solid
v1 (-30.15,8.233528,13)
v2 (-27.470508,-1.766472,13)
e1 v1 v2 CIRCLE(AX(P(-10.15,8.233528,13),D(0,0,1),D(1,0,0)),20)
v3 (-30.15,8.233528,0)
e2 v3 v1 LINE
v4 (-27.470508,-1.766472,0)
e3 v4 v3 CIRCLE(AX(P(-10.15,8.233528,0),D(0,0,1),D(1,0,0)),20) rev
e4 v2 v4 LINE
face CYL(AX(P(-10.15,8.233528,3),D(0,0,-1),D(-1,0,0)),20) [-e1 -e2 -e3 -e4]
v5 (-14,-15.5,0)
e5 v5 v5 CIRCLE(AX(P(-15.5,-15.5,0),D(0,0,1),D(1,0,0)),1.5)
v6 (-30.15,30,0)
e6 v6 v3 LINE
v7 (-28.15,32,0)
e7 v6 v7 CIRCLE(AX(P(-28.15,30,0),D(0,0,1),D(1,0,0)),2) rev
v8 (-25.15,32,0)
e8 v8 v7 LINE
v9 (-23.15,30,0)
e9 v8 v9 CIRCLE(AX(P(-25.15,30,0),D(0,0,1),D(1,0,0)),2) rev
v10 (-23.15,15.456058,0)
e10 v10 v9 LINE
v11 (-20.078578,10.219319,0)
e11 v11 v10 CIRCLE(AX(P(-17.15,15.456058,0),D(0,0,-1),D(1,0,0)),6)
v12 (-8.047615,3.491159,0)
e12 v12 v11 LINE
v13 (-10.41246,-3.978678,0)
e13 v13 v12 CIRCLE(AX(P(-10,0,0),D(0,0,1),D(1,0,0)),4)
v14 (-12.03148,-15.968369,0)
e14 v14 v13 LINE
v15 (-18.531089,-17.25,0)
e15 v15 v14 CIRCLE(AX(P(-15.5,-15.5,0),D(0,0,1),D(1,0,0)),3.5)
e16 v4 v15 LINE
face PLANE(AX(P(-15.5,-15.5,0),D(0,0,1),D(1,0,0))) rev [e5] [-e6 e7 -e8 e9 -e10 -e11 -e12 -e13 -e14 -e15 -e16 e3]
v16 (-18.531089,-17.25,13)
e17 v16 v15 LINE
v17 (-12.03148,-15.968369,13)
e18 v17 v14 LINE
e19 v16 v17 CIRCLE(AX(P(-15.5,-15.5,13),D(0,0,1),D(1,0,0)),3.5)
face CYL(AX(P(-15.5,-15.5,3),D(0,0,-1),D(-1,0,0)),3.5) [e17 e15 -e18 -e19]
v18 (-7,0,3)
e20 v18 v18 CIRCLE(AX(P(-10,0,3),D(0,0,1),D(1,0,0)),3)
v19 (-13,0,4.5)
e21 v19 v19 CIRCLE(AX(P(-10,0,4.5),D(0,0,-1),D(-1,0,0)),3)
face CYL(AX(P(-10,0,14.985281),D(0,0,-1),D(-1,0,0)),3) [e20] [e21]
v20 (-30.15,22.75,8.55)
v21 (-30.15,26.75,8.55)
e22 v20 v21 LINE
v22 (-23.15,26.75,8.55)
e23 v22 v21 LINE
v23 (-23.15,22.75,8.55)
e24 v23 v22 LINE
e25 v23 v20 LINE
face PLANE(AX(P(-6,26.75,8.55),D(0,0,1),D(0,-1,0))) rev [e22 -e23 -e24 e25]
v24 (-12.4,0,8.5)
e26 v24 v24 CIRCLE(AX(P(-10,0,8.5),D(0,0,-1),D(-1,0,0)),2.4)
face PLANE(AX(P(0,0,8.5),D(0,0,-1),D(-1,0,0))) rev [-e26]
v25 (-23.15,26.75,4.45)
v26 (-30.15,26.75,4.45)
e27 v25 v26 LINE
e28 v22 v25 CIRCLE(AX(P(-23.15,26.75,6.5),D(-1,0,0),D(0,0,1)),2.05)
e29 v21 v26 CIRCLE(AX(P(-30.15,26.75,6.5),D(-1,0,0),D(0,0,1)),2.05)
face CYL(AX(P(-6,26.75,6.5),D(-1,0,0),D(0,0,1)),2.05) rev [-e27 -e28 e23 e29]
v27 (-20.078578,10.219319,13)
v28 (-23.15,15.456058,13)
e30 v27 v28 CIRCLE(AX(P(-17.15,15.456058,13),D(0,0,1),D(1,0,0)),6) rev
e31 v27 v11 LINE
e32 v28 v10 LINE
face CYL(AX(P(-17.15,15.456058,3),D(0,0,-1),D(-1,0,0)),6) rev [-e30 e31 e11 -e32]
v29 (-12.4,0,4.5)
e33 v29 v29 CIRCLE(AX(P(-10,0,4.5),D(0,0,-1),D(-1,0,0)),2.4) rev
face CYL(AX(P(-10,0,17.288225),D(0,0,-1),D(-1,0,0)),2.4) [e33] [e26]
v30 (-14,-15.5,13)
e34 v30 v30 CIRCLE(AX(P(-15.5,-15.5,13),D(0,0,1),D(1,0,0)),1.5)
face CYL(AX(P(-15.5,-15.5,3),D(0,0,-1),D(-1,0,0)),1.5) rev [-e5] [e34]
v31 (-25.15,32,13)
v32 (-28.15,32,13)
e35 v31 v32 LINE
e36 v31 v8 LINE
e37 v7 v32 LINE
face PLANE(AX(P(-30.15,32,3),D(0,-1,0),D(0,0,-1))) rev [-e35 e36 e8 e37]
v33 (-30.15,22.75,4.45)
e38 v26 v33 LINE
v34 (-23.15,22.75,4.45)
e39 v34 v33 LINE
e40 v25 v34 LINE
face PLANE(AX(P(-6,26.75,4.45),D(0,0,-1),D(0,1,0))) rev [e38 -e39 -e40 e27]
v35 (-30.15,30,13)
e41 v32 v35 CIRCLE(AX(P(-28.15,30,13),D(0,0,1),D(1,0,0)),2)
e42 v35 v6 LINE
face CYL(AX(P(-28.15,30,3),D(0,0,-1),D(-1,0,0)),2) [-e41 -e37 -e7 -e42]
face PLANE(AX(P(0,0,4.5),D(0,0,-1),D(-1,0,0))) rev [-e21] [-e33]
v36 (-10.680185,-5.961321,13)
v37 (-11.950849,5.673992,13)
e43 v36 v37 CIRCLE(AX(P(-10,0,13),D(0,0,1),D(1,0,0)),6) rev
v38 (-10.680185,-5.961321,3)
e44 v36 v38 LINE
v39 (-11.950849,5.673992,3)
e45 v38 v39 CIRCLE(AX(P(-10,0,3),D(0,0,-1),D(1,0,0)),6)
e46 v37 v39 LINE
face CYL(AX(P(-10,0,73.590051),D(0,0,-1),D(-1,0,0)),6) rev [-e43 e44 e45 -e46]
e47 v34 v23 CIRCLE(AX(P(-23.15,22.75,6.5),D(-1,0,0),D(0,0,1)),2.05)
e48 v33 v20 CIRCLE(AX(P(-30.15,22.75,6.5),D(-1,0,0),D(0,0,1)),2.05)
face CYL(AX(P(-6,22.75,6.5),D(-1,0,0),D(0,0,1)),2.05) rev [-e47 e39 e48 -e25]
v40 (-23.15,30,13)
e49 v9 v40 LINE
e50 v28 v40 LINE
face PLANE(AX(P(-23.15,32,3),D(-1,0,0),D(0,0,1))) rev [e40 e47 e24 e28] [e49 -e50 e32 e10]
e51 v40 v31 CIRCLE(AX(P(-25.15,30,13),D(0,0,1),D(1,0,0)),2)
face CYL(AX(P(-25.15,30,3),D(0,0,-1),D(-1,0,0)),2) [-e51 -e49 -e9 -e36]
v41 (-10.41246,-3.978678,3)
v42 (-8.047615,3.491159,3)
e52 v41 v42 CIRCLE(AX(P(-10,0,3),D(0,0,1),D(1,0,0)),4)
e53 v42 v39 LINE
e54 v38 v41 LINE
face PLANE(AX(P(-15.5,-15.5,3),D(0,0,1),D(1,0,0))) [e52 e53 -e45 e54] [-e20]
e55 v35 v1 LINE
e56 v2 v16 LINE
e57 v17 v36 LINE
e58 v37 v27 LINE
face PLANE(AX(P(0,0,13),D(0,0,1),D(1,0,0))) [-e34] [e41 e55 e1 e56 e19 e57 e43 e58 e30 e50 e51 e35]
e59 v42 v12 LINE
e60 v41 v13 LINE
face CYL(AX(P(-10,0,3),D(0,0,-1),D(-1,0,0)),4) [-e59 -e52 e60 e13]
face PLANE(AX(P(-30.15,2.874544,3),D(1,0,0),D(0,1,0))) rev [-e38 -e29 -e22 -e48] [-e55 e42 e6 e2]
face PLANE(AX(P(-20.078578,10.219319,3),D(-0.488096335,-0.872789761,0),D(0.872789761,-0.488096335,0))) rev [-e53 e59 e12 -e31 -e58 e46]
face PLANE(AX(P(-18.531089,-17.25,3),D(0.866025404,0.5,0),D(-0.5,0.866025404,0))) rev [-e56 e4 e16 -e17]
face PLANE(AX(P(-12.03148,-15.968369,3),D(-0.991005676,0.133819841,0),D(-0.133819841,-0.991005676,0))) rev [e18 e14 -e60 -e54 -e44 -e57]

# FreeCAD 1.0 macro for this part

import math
import FreeCAD as App
import Part
import Sketcher

V = App.Vector
Q = App.Units.Quantity


def edges_at(feature, points):
    """Names of the edges that pass closest to the given points."""
    edges = feature.Shape.Edges
    near = lambda p: min(range(len(edges)), key=lambda i: edges[i].distToShape(Part.Vertex(*p))[0])
    return sorted({f"Edge{near(p) + 1}" for p in points})

doc = App.newDocument("Part")
params = doc.addObject("Spreadsheet::Sheet", "Params")
for row, (alias, value) in enumerate([
    ("sketch1_diameter", "3 mm"),
    ("sketch1_radius", "4 mm"),
    ("sketch1_radius2", "6 mm"),
    ("sketch1_radius3", "3.5 mm"),
    ("sketch1_width", "7 mm"),
    ("pad1_length", "3 mm"),
    ("sketch2_diameter", "6 mm"),
    ("pad2_length", "1.5 mm"),
    ("sketch3_diameter", "4.8 mm"),
    ("pad3_length", "4 mm"),
    ("sketch4_diameter", "3 mm"),
    ("sketch4_radius", "6 mm"),
    ("sketch4_radius2", "3.5 mm"),
    ("sketch4_width", "7 mm"),
    ("pad4_length", "10 mm"),
    ("fillet_radius", "20 mm"),
    ("fillet2_radius", "2 mm"),
    ("sketch5_width", "4 mm"),
    ("sketch5_radius", "2.05 mm"),
], start=1):
    params.set(f"A{row}", alias)
    params.set(f"B{row}", "=" + value)
    params.setAlias(f"B{row}", alias)

body = doc.addObject("PartDesign::Body", "Body")

# Sketch on XY plane
sketch1 = doc.addObject("Sketcher::SketchObject", "Sketch")
body.addObject(sketch1)
sketch1.AttachmentSupport = (doc.XY_Plane, [""])
sketch1.MapMode = "FlatFace"
sketch1.addGeometry(Part.LineSegment(V(-12, -16, 0), V(-10.4, -4, 0)), False)
sketch1.addGeometry(Part.ArcOfCircle(Part.Circle(V(-10, 0, 0), V(0, 0, 1), 4), math.radians(-96), math.radians(61)), False)
sketch1.addGeometry(Part.LineSegment(V(-8, 3.5, 0), V(-20.1, 10.2, 0)), False)
sketch1.addGeometry(Part.ArcOfCircle(Part.Circle(V(-17.2, 15.5, 0), V(0, 0, 1), 6), math.radians(180), math.radians(241)), False)
sketch1.addGeometry(Part.LineSegment(V(-23.1, 15.5, 0), V(-23.1, 32, 0)), False)
sketch1.addGeometry(Part.LineSegment(V(-23.1, 32, 0), V(-30.1, 32, 0)), False)
sketch1.addGeometry(Part.LineSegment(V(-30.1, 32, 0), V(-30.1, 2.9, 0)), False)
sketch1.addGeometry(Part.LineSegment(V(-30.1, 2.9, 0), V(-18.5, -17.2, 0)), False)
sketch1.addGeometry(Part.ArcOfCircle(Part.Circle(V(-15.5, -15.5, 0), V(0, 0, 1), 3.5), math.radians(-150), math.radians(-8)), False)
sketch1.addGeometry(Part.Circle(V(-15.5, -15.5, 0), V(0, 0, 1), 1.5), False)
sketch1.addConstraint(Sketcher.Constraint("Coincident", 0, 2, 1, 1))
sketch1.addConstraint(Sketcher.Constraint("Tangent", 1, 2, 2, 1))
sketch1.addConstraint(Sketcher.Constraint("Tangent", 2, 2, 3, 2))
sketch1.addConstraint(Sketcher.Constraint("Tangent", 3, 1, 4, 1))
sketch1.addConstraint(Sketcher.Constraint("Coincident", 4, 2, 5, 1))
sketch1.addConstraint(Sketcher.Constraint("Coincident", 5, 2, 6, 1))
sketch1.addConstraint(Sketcher.Constraint("Coincident", 6, 2, 7, 1))
sketch1.addConstraint(Sketcher.Constraint("Tangent", 7, 2, 8, 1))
sketch1.addConstraint(Sketcher.Constraint("Tangent", 8, 2, 0, 1))
sketch1.addConstraint(Sketcher.Constraint("Vertical", 4))
sketch1.addConstraint(Sketcher.Constraint("Horizontal", 5))
sketch1.addConstraint(Sketcher.Constraint("Vertical", 6))
sketch1.addConstraint(Sketcher.Constraint("Coincident", 9, 3, 8, 3))
sketch1.addConstraint(Sketcher.Constraint("PointOnObject", 1, 3, -1))
sketch1.addConstraint(Sketcher.Constraint("Diameter", 9, 3.0))
sketch1.addConstraint(Sketcher.Constraint("Radius", 1, 4.0))
sketch1.addConstraint(Sketcher.Constraint("Radius", 3, 6.0))
sketch1.addConstraint(Sketcher.Constraint("Radius", 8, 3.5))
sketch1.addConstraint(Sketcher.Constraint("DistanceX", 5, 2, 5, 1, 7.0))
sketch1.addConstraint(Sketcher.Constraint("Angle", 7, Q("-60 deg")))
sketch1.addConstraint(Sketcher.Constraint("DistanceX", 1, 3, -1, 1, 10.0))
sketch1.addConstraint(Sketcher.Constraint("DistanceY", -1, 1, 4, 2, 32.0))
sketch1.addConstraint(Sketcher.Constraint("DistanceX", 8, 3, -1, 1, 15.5))
sketch1.addConstraint(Sketcher.Constraint("DistanceY", 8, 3, -1, 1, 15.5))
sketch1.addConstraint(Sketcher.Constraint("DistanceX", 3, 3, -1, 1, 17.15))
sketch1.addConstraint(Sketcher.Constraint("DistanceY", 1, 2, 3, 3, 11.964899))
sketch1.addConstraint(Sketcher.Constraint("Distance", 0, 12.09851))
sketch1.setExpression("Constraints[14]", "Params.sketch1_diameter")
sketch1.setExpression("Constraints[15]", "Params.sketch1_radius")
sketch1.setExpression("Constraints[16]", "Params.sketch1_radius2")
sketch1.setExpression("Constraints[17]", "Params.sketch1_radius3")
sketch1.setExpression("Constraints[18]", "Params.sketch1_width")
pad1 = doc.addObject("PartDesign::Pad", "Pad")
body.addObject(pad1)
pad1.Profile = sketch1
pad1.setExpression("Length", "Params.pad1_length")

# Sketch on XY plane
sketch2 = doc.addObject("Sketcher::SketchObject", "Sketch001")
body.addObject(sketch2)
sketch2.AttachmentSupport = (doc.XY_Plane, [""])
sketch2.MapMode = "FlatFace"
sketch2.AttachmentOffset = App.Placement(V(0, 0, 3), App.Rotation())
sketch2.addGeometry(Part.Circle(V(-10, 0, 0), V(0, 0, 1), 3), False)
sketch2.addConstraint(Sketcher.Constraint("PointOnObject", 0, 3, -1))
sketch2.addConstraint(Sketcher.Constraint("Diameter", 0, 6.0))
sketch2.addConstraint(Sketcher.Constraint("DistanceX", 0, 3, -1, 1, 10.0))
sketch2.setExpression("Constraints[1]", "Params.sketch2_diameter")
pad2 = doc.addObject("PartDesign::Pad", "Pad001")
body.addObject(pad2)
pad2.Profile = sketch2
pad2.setExpression("Length", "Params.pad2_length")

# Sketch on XY plane
sketch3 = doc.addObject("Sketcher::SketchObject", "Sketch002")
body.addObject(sketch3)
sketch3.AttachmentSupport = (doc.XY_Plane, [""])
sketch3.MapMode = "FlatFace"
sketch3.AttachmentOffset = App.Placement(V(0, 0, 4.5), App.Rotation())
sketch3.addGeometry(Part.Circle(V(-10, 0, 0), V(0, 0, 1), 2.4), False)
sketch3.addConstraint(Sketcher.Constraint("PointOnObject", 0, 3, -1))
sketch3.addConstraint(Sketcher.Constraint("Diameter", 0, 4.8))
sketch3.addConstraint(Sketcher.Constraint("DistanceX", 0, 3, -1, 1, 10.0))
sketch3.setExpression("Constraints[1]", "Params.sketch3_diameter")
pad3 = doc.addObject("PartDesign::Pad", "Pad002")
body.addObject(pad3)
pad3.Profile = sketch3
pad3.setExpression("Length", "Params.pad3_length")

# Sketch on XY plane
sketch4 = doc.addObject("Sketcher::SketchObject", "Sketch003")
body.addObject(sketch4)
sketch4.AttachmentSupport = (doc.XY_Plane, [""])
sketch4.MapMode = "FlatFace"
sketch4.AttachmentOffset = App.Placement(V(0, 0, 3), App.Rotation())
sketch4.addGeometry(Part.LineSegment(V(-12, -16, 0), V(-10.7, -6, 0)), False)
sketch4.addGeometry(Part.ArcOfCircle(Part.Circle(V(-10, 0, 0), V(0, 0, 1), 6), math.radians(109), math.radians(263)), False)
sketch4.addGeometry(Part.LineSegment(V(-12, 5.7, 0), V(-20.1, 10.2, 0)), False)
sketch4.addGeometry(Part.ArcOfCircle(Part.Circle(V(-17.2, 15.5, 0), V(0, 0, 1), 6), math.radians(180), math.radians(241)), False)
sketch4.addGeometry(Part.LineSegment(V(-23.1, 15.5, 0), V(-23.1, 32, 0)), False)
sketch4.addGeometry(Part.LineSegment(V(-23.1, 32, 0), V(-30.1, 32, 0)), False)
sketch4.addGeometry(Part.LineSegment(V(-30.1, 32, 0), V(-30.1, 2.9, 0)), False)
sketch4.addGeometry(Part.LineSegment(V(-30.1, 2.9, 0), V(-18.5, -17.2, 0)), False)
sketch4.addGeometry(Part.ArcOfCircle(Part.Circle(V(-15.5, -15.5, 0), V(0, 0, 1), 3.5), math.radians(-150), math.radians(-8)), False)
sketch4.addGeometry(Part.Circle(V(-15.5, -15.5, 0), V(0, 0, 1), 1.5), False)
sketch4.addConstraint(Sketcher.Constraint("Coincident", 0, 2, 1, 2))
sketch4.addConstraint(Sketcher.Constraint("Coincident", 1, 1, 2, 1))
sketch4.addConstraint(Sketcher.Constraint("Tangent", 2, 2, 3, 2))
sketch4.addConstraint(Sketcher.Constraint("Tangent", 3, 1, 4, 1))
sketch4.addConstraint(Sketcher.Constraint("Coincident", 4, 2, 5, 1))
sketch4.addConstraint(Sketcher.Constraint("Coincident", 5, 2, 6, 1))
sketch4.addConstraint(Sketcher.Constraint("Coincident", 6, 2, 7, 1))
sketch4.addConstraint(Sketcher.Constraint("Tangent", 7, 2, 8, 1))
sketch4.addConstraint(Sketcher.Constraint("Tangent", 8, 2, 0, 1))
sketch4.addConstraint(Sketcher.Constraint("Vertical", 4))
sketch4.addConstraint(Sketcher.Constraint("Horizontal", 5))
sketch4.addConstraint(Sketcher.Constraint("Vertical", 6))
sketch4.addConstraint(Sketcher.Constraint("Coincident", 9, 3, 8, 3))
sketch4.addConstraint(Sketcher.Constraint("Equal", 1, 3))
sketch4.addConstraint(Sketcher.Constraint("PointOnObject", 1, 3, -1))
sketch4.addConstraint(Sketcher.Constraint("Diameter", 9, 3.0))
sketch4.addConstraint(Sketcher.Constraint("Radius", 1, 6.0))
sketch4.addConstraint(Sketcher.Constraint("Radius", 8, 3.5))
sketch4.addConstraint(Sketcher.Constraint("DistanceX", 5, 2, 5, 1, 7.0))
sketch4.addConstraint(Sketcher.Constraint("Angle", 7, Q("-60 deg")))
sketch4.addConstraint(Sketcher.Constraint("DistanceX", 1, 3, -1, 1, 10.0))
sketch4.addConstraint(Sketcher.Constraint("DistanceY", -1, 1, 4, 2, 32.0))
sketch4.addConstraint(Sketcher.Constraint("DistanceX", 8, 3, -1, 1, 15.5))
sketch4.addConstraint(Sketcher.Constraint("DistanceY", 8, 3, -1, 1, 15.5))
sketch4.addConstraint(Sketcher.Constraint("DistanceX", 3, 3, -1, 1, 17.15))
sketch4.addConstraint(Sketcher.Constraint("Distance", 0, 10.097872))
sketch4.addConstraint(Sketcher.Constraint("DistanceY", 4, 1, 4, 2, 16.543942))
sketch4.addConstraint(Sketcher.Constraint("DistanceX", 1, 1, -1, 1, 11.950849))
sketch4.setExpression("Constraints[15]", "Params.sketch4_diameter")
sketch4.setExpression("Constraints[16]", "Params.sketch4_radius")
sketch4.setExpression("Constraints[17]", "Params.sketch4_radius2")
sketch4.setExpression("Constraints[18]", "Params.sketch4_width")
pad4 = doc.addObject("PartDesign::Pad", "Pad003")
body.addObject(pad4)
pad4.Profile = sketch4
pad4.setExpression("Length", "Params.pad4_length")
doc.recompute()

fillet = doc.addObject("PartDesign::Fillet", "Fillet")
body.addObject(fillet)
fillet.Base = (pad4, edges_at(pad4, [(-30.15, 2.875, 6.5)]))
fillet.setExpression("Radius", "Params.fillet_radius")
doc.recompute()

fillet2 = doc.addObject("PartDesign::Fillet", "Fillet001")
body.addObject(fillet2)
fillet2.Base = (fillet, edges_at(fillet, [(-30.15, 32, 6.5), (-23.15, 32, 6.5)]))
fillet2.setExpression("Radius", "Params.fillet2_radius")

# Sketch on YZ plane
sketch5 = doc.addObject("Sketcher::SketchObject", "Sketch004")
body.addObject(sketch5)
sketch5.AttachmentSupport = (doc.YZ_Plane, [""])
sketch5.MapMode = "FlatFace"
sketch5.AttachmentOffset = App.Placement(V(0, 0, -30.15), App.Rotation())
sketch5.addGeometry(Part.LineSegment(V(22.8, 8.6, 0), V(26.8, 8.6, 0)), False)
sketch5.addGeometry(Part.ArcOfCircle(Part.Circle(V(26.8, 6.5, 0), V(0, 0, 1), 2), math.radians(-90), math.radians(90)), False)
sketch5.addGeometry(Part.LineSegment(V(26.8, 4.5, 0), V(22.8, 4.5, 0)), False)
sketch5.addGeometry(Part.ArcOfCircle(Part.Circle(V(22.8, 6.5, 0), V(0, 0, 1), 2), math.radians(90), math.radians(270)), False)
sketch5.addConstraint(Sketcher.Constraint("Tangent", 0, 2, 1, 2))
sketch5.addConstraint(Sketcher.Constraint("Tangent", 1, 1, 2, 1))
sketch5.addConstraint(Sketcher.Constraint("Tangent", 2, 2, 3, 2))
sketch5.addConstraint(Sketcher.Constraint("Tangent", 3, 1, 0, 1))
sketch5.addConstraint(Sketcher.Constraint("Horizontal", 0))
sketch5.addConstraint(Sketcher.Constraint("Horizontal", 2))
sketch5.addConstraint(Sketcher.Constraint("DistanceX", 0, 1, 0, 2, 4.0))
sketch5.addConstraint(Sketcher.Constraint("Radius", 1, 2.05))
sketch5.addConstraint(Sketcher.Constraint("DistanceY", -1, 1, 1, 3, 6.5))
sketch5.addConstraint(Sketcher.Constraint("DistanceX", -1, 1, 1, 3, 26.75))
sketch5.setExpression("Constraints[6]", "Params.sketch5_width")
sketch5.setExpression("Constraints[7]", "Params.sketch5_radius")
pocket1 = doc.addObject("PartDesign::Pocket", "Pocket")
body.addObject(pocket1)
pocket1.Profile = sketch5
pocket1.Type = "ThroughAll"
pocket1.Reversed = True

doc.recompute()
